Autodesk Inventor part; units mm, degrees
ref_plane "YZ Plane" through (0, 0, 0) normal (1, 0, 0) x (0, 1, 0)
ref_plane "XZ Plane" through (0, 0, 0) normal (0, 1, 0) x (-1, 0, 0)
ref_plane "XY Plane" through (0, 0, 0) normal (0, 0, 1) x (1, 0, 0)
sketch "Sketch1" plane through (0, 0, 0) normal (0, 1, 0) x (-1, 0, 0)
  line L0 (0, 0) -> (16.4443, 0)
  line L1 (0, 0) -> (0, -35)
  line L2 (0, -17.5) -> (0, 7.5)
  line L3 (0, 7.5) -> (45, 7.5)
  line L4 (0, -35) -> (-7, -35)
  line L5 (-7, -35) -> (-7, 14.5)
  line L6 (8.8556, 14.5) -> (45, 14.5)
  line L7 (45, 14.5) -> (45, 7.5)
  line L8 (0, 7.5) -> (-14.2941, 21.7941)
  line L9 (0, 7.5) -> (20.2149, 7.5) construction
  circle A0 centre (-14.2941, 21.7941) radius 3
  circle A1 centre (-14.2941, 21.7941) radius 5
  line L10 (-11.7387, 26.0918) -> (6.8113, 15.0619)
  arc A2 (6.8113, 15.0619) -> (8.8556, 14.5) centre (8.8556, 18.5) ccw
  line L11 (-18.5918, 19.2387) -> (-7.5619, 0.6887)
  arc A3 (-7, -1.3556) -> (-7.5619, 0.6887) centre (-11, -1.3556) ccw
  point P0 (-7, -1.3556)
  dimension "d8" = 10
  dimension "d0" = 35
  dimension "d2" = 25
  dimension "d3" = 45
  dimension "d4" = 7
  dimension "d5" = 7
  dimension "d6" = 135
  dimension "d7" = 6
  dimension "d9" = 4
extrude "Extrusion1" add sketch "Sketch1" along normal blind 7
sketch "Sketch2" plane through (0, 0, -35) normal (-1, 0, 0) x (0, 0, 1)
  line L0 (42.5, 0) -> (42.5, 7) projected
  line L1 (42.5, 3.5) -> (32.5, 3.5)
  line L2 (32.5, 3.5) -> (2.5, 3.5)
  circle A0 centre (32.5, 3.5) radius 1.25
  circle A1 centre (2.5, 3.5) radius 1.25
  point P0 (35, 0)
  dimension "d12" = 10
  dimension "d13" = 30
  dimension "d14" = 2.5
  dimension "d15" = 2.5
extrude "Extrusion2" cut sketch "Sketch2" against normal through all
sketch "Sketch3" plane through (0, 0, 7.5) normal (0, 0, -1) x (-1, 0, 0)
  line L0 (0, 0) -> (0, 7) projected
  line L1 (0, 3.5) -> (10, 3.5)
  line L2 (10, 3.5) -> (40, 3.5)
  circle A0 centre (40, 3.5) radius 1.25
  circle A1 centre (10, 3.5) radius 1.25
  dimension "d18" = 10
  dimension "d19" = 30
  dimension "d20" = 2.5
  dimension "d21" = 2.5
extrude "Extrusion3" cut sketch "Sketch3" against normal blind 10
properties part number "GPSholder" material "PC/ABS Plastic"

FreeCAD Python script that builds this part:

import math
import FreeCAD as App
import Part
import Sketcher
from FreeCAD import Vector
Q = App.Units.Quantity

doc = App.newDocument("Part")
params = doc.addObject("Spreadsheet::Sheet", "Params")
for row, (alias, value) in enumerate([
    ("sketch1_diameter", "6 mm"),
    ("sketch1_radius", "4 mm"),
    ("sketch1_radius2", "5 mm"),
    ("sketch1_width", "45 mm"),
    ("sketch1_width2", "7 mm"),
    ("pad1_length", "7 mm"),
    ("sketch2_diameter", "2.5 mm"),
    ("sketch3_diameter", "2.5 mm"),
    ("pocket2_length", "10 mm"),
], start=1):
    params.set(f"A{row}", alias)
    params.set(f"B{row}", "=" + value)
    params.setAlias(f"B{row}", alias)

body = doc.addObject("PartDesign::Body", "Body")

# Sketch on XZ plane
sketch1 = body.newObject("Sketcher::SketchObject", "Sketch")
sketch1.AttachmentSupport = (doc.getObject("XZ_Plane"), [""])
sketch1.MapMode = "FlatFace"
sketch1.addGeometry([
    Part.LineSegment(Vector(0, 7.5, 0), Vector(-45, 7.5, 0)),  # 0
    Part.LineSegment(Vector(-45, 7.5, 0), Vector(-45, 14.5, 0)),  # 1
    Part.LineSegment(Vector(-45, 14.5, 0), Vector(-8.9, 14.5, 0)),  # 2
    Part.ArcOfCircle(Part.Circle(Vector(-8.9, 18.5, 0), Vector(0, 0, 1), 4), math.radians(-90), math.radians(-59)),  # 3
    Part.LineSegment(Vector(-6.8, 15.1, 0), Vector(11.7, 26.1, 0)),  # 4
    Part.ArcOfCircle(Part.Circle(Vector(14.3, 21.8, 0), Vector(0, 0, 1), 5), math.radians(-31), math.radians(121)),  # 5
    Part.LineSegment(Vector(18.6, 19.2, 0), Vector(7.6, 0.7, 0)),  # 6
    Part.ArcOfCircle(Part.Circle(Vector(11, -1.4, 0), Vector(0, 0, 1), 4), math.radians(149), math.radians(180)),  # 7
    Part.LineSegment(Vector(7, -1.4, 0), Vector(7, -35, 0)),  # 8
    Part.LineSegment(Vector(7, -35, 0), Vector(0, -35, 0)),  # 9
    Part.LineSegment(Vector(0, -35, 0), Vector(0, 7.5, 0)),  # 10
    Part.Circle(Vector(14.3, 21.8, 0), Vector(0, 0, 1), 3),  # 11
], False)
sketch1.addConstraint([
    Sketcher.Constraint("Coincident", 0, 2, 1, 1),
    Sketcher.Constraint("Coincident", 1, 2, 2, 1),
    Sketcher.Constraint("Tangent", 2, 2, 3, 1),
    Sketcher.Constraint("Tangent", 3, 2, 4, 1),
    Sketcher.Constraint("Tangent", 4, 2, 5, 2),
    Sketcher.Constraint("Tangent", 5, 1, 6, 1),
    Sketcher.Constraint("Tangent", 6, 2, 7, 1),
    Sketcher.Constraint("Tangent", 7, 2, 8, 1),
    Sketcher.Constraint("Coincident", 8, 2, 9, 1),
    Sketcher.Constraint("Coincident", 9, 2, 10, 1),
    Sketcher.Constraint("Coincident", 10, 2, 0, 1),
    Sketcher.Constraint("Horizontal", 0),
    Sketcher.Constraint("Vertical", 1),
    Sketcher.Constraint("Horizontal", 2),
    Sketcher.Constraint("Vertical", 8),
    Sketcher.Constraint("Horizontal", 9),
    Sketcher.Constraint("Vertical", 10),
    Sketcher.Constraint("Coincident", 11, 3, 5, 3),
    Sketcher.Constraint("Equal", 3, 7),
    Sketcher.Constraint("PointOnObject", 9, 2, -2),
    Sketcher.Constraint("Equal", 9, 1),
    Sketcher.Constraint("Equal", 4, 6),
    Sketcher.Constraint("Diameter", 11, Q("6 mm")),
    Sketcher.Constraint("Radius", 3, Q("4 mm")),
    Sketcher.Constraint("Radius", 5, Q("5 mm")),
    Sketcher.Constraint("DistanceX", 0, 2, 0, 1, Q("45 mm")),
    Sketcher.Constraint("DistanceX", 9, 2, 9, 1, Q("7 mm")),
    Sketcher.Constraint("DistanceY", 8, 2, -1, 1, Q("35 mm")),
    Sketcher.Constraint("DistanceY", 10, 1, 10, 2, Q("42.5 mm")),
    Sketcher.Constraint("DistanceX", 3, 2, 4, 2, Q("18.55 mm")),
    Sketcher.Constraint("DistanceY", 3, 2, 4, 2, Q("11.03 mm")),
    Sketcher.Constraint("DistanceY", 6, 2, 5, 1, Q("18.55 mm")),
])
sketch1.setExpression("Constraints[22]", "Params.sketch1_diameter")
sketch1.setExpression("Constraints[23]", "Params.sketch1_radius")
sketch1.setExpression("Constraints[24]", "Params.sketch1_radius2")
sketch1.setExpression("Constraints[25]", "Params.sketch1_width")
sketch1.setExpression("Constraints[26]", "Params.sketch1_width2")
pad1 = body.newObject("PartDesign::Pad", "Pad")
pad1.Profile = sketch1
pad1.setExpression("Length", "Params.pad1_length")
pad1.Reversed = True

# Sketch on YZ plane
sketch2 = body.newObject("Sketcher::SketchObject", "Sketch001")
sketch2.AttachmentSupport = (doc.getObject("YZ_Plane"), [""])
sketch2.MapMode = "FlatFace"
sketch2.addGeometry([
    Part.Circle(Vector(3.5, -2.5, 0), Vector(0, 0, 1), 1.2),
    Part.Circle(Vector(3.5, -32.5, 0), Vector(0, 0, 1), 1.2),
], False)
sketch2.addConstraint([
    Sketcher.Constraint("Equal", 0, 1),
    Sketcher.Constraint("Vertical", 0, 3, 1, 3),
    Sketcher.Constraint("Diameter", 0, Q("2.5 mm")),
    Sketcher.Constraint("DistanceY", 1, 3, 0, 3, Q("30 mm")),
    Sketcher.Constraint("DistanceY", 0, 3, -1, 1, Q("2.5 mm")),
    Sketcher.Constraint("DistanceX", -1, 1, 0, 3, Q("3.5 mm")),
])
sketch2.setExpression("Constraints[2]", "Params.sketch2_diameter")
pocket1 = body.newObject("PartDesign::Pocket", "Pocket")
pocket1.Profile = sketch2
pocket1.Type = "ThroughAll"
pocket1.Reversed = True

# Sketch on XY plane
sketch3 = body.newObject("Sketcher::SketchObject", "Sketch002")
sketch3.AttachmentSupport = (doc.getObject("XY_Plane"), [""])
sketch3.MapMode = "FlatFace"
sketch3.AttachmentOffset = App.Placement(Vector(0, 0, 7.5), App.Rotation())
sketch3.addGeometry([
    Part.Circle(Vector(-10, 3.5, 0), Vector(0, 0, 1), 1.2),
    Part.Circle(Vector(-40, 3.5, 0), Vector(0, 0, 1), 1.2),
], False)
sketch3.addConstraint([
    Sketcher.Constraint("Equal", 0, 1),
    Sketcher.Constraint("Horizontal", 0, 3, 1, 3),
    Sketcher.Constraint("Diameter", 0, Q("2.5 mm")),
    Sketcher.Constraint("DistanceX", 0, 3, -1, 1, Q("10 mm")),
    Sketcher.Constraint("DistanceX", 1, 3, 0, 3, Q("30 mm")),
    Sketcher.Constraint("DistanceY", -1, 1, 0, 3, Q("3.5 mm")),
])
sketch3.setExpression("Constraints[2]", "Params.sketch3_diameter")
pocket2 = body.newObject("PartDesign::Pocket", "Pocket001")
pocket2.Profile = sketch3
pocket2.setExpression("Length", "Params.pocket2_length")
pocket2.Reversed = True

doc.recompute()
